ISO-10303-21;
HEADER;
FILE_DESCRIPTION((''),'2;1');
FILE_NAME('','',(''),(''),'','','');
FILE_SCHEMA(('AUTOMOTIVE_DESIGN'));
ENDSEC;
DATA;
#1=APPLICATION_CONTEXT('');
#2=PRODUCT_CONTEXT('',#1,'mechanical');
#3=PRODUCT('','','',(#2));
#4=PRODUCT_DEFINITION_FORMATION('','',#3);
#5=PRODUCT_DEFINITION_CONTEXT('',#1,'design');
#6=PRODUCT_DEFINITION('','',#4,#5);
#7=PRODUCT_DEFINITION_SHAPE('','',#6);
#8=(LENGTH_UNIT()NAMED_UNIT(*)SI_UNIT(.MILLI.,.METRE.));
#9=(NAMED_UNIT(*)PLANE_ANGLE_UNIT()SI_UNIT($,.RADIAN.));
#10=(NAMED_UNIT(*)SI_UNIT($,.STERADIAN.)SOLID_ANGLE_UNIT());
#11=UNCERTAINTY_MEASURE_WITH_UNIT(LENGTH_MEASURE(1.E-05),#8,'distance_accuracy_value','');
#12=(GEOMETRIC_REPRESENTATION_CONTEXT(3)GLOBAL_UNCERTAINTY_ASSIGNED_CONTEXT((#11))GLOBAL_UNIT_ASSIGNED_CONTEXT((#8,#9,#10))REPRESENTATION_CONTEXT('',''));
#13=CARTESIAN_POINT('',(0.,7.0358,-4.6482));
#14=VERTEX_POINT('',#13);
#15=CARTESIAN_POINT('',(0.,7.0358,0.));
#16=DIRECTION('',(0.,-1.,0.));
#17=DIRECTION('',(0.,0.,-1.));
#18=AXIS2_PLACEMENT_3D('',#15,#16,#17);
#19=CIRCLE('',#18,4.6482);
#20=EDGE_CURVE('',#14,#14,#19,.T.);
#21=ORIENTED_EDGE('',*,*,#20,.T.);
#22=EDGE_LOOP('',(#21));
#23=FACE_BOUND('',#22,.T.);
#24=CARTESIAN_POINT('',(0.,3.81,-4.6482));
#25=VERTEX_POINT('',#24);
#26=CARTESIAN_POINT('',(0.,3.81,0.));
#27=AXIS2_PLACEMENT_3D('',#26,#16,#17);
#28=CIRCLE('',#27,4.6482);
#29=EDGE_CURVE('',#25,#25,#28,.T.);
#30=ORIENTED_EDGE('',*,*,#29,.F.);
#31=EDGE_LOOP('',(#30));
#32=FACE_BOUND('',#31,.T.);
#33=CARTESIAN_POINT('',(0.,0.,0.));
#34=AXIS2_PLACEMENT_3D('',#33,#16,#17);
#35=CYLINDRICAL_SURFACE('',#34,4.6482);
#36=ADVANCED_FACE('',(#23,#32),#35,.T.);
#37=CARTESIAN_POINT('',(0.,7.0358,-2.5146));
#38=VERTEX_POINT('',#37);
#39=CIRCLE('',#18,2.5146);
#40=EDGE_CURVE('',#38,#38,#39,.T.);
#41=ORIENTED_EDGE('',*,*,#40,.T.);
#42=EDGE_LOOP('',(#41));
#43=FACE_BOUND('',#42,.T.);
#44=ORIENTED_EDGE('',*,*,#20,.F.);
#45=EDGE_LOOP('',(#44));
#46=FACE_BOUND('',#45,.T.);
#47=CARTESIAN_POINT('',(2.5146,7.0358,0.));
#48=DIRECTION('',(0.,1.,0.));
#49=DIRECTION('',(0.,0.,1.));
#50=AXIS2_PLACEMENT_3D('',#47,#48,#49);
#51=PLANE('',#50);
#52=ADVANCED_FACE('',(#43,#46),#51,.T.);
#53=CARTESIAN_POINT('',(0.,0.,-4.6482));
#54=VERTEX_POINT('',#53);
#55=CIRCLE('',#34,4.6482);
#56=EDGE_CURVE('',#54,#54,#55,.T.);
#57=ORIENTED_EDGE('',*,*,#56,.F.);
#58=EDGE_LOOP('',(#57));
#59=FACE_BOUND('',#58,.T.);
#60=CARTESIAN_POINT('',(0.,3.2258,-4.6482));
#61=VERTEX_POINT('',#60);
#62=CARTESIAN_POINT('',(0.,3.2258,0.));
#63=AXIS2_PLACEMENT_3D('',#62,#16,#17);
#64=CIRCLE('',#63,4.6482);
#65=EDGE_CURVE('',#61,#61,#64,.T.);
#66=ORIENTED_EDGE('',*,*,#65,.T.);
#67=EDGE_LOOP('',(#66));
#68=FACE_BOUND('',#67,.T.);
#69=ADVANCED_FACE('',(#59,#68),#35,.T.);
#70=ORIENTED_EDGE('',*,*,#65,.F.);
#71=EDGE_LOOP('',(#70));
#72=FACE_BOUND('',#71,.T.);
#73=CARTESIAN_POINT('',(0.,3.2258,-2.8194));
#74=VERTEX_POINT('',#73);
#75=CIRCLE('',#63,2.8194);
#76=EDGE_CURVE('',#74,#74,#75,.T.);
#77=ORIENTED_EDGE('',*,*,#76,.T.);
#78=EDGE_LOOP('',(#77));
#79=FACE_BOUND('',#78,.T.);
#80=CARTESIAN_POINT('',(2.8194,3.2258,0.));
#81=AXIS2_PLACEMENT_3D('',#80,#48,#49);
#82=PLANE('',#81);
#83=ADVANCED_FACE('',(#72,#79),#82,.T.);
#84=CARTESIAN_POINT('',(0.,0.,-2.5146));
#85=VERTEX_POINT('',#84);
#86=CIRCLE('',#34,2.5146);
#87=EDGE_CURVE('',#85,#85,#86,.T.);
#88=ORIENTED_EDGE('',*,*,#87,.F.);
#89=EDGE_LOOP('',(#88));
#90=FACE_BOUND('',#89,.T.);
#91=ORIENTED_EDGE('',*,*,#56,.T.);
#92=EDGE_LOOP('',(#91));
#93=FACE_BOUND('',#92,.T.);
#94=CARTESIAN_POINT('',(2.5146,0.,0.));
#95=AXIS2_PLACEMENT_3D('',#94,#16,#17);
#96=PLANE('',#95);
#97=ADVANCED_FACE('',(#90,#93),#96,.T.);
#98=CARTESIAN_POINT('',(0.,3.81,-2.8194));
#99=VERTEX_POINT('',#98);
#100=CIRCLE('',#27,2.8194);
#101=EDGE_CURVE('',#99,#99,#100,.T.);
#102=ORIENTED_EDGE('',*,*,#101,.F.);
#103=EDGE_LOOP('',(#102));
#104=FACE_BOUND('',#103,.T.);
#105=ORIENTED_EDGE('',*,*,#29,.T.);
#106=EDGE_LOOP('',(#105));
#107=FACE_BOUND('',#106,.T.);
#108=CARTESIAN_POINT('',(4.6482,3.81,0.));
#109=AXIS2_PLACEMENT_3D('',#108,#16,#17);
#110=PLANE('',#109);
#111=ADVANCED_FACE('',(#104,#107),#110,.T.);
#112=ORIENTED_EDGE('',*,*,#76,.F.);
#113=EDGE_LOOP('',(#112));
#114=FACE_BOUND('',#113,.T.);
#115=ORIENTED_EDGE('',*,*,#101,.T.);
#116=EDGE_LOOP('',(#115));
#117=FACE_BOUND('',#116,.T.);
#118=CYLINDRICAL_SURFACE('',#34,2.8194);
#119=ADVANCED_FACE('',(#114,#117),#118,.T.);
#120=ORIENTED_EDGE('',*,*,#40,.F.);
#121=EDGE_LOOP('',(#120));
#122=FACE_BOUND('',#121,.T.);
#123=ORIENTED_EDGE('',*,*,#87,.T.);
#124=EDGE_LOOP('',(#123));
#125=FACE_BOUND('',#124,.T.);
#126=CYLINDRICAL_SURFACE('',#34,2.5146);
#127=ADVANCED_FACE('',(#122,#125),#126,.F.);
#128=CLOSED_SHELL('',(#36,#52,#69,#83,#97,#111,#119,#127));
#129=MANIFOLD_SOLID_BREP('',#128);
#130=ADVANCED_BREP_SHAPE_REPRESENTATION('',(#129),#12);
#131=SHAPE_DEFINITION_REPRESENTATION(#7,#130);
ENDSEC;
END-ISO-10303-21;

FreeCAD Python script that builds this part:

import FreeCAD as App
import Part
import Sketcher
Q = App.Units.Quantity


def add_polygon(sketch, points):
    """Adds a closed chain of lines whose ends are joined by coincident constraints."""
    first, n = sketch.GeometryCount, len(points)
    for a, b in zip(points, points[1:] + points[:1]):
        sketch.addGeometry(Part.LineSegment(App.Vector(*a, 0), App.Vector(*b, 0)), False)
    for i in range(n):
        sketch.addConstraint(Sketcher.Constraint("Coincident", first + i, 2, first + (i + 1) % n, 1))

doc = App.newDocument("Part")
body = doc.addObject("PartDesign::Body", "Body")

# Sketch on XY plane
sketch1 = doc.addObject("Sketcher::SketchObject", "Sketch")
body.addObject(sketch1)
sketch1.AttachmentSupport = (doc.XY_Plane, [""])
sketch1.MapMode = "FlatFace"
add_polygon(sketch1, [(2.5, 7), (2.5, 0), (4.6, 0), (4.6, 3.2), (2.8, 3.2), (2.8, 3.8), (4.6, 3.8), (4.6, 7)])  # lines 0-7
sketch1.addConstraint(Sketcher.Constraint("Vertical", 0))
sketch1.addConstraint(Sketcher.Constraint("Horizontal", 1))
sketch1.addConstraint(Sketcher.Constraint("Vertical", 2))
sketch1.addConstraint(Sketcher.Constraint("Horizontal", 3))
sketch1.addConstraint(Sketcher.Constraint("Vertical", 4))
sketch1.addConstraint(Sketcher.Constraint("Horizontal", 5))
sketch1.addConstraint(Sketcher.Constraint("Vertical", 6))
sketch1.addConstraint(Sketcher.Constraint("Horizontal", 7))
sketch1.addConstraint(Sketcher.Constraint("PointOnObject", 0, 2, -1))
sketch1.addConstraint(Sketcher.Constraint("Vertical", 2, 2, 5, 2))
sketch1.addConstraint(Sketcher.Constraint("Equal", 2, 6))
sketch1.addConstraint(Sketcher.Constraint("DistanceX", 1, 1, 1, 2, Q("0.084 in")))
sketch1.addConstraint(Sketcher.Constraint("DistanceX", 3, 2, 3, 1, Q("0.072 in")))
sketch1.addConstraint(Sketcher.Constraint("DistanceY", 0, 2, 0, 1, Q("0.277 in")))
sketch1.addConstraint(Sketcher.Constraint("DistanceY", 2, 1, 2, 2, Q("0.127 in")))
sketch1.addConstraint(Sketcher.Constraint("DistanceX", -1, 1, 0, 2, Q("0.099 in")))
revolution = doc.addObject("PartDesign::Revolution", "Revolution")
body.addObject(revolution)
revolution.Profile = sketch1
revolution.ReferenceAxis = (sketch1, ["V_Axis"])
revolution.Angle = 360

doc.recompute()
